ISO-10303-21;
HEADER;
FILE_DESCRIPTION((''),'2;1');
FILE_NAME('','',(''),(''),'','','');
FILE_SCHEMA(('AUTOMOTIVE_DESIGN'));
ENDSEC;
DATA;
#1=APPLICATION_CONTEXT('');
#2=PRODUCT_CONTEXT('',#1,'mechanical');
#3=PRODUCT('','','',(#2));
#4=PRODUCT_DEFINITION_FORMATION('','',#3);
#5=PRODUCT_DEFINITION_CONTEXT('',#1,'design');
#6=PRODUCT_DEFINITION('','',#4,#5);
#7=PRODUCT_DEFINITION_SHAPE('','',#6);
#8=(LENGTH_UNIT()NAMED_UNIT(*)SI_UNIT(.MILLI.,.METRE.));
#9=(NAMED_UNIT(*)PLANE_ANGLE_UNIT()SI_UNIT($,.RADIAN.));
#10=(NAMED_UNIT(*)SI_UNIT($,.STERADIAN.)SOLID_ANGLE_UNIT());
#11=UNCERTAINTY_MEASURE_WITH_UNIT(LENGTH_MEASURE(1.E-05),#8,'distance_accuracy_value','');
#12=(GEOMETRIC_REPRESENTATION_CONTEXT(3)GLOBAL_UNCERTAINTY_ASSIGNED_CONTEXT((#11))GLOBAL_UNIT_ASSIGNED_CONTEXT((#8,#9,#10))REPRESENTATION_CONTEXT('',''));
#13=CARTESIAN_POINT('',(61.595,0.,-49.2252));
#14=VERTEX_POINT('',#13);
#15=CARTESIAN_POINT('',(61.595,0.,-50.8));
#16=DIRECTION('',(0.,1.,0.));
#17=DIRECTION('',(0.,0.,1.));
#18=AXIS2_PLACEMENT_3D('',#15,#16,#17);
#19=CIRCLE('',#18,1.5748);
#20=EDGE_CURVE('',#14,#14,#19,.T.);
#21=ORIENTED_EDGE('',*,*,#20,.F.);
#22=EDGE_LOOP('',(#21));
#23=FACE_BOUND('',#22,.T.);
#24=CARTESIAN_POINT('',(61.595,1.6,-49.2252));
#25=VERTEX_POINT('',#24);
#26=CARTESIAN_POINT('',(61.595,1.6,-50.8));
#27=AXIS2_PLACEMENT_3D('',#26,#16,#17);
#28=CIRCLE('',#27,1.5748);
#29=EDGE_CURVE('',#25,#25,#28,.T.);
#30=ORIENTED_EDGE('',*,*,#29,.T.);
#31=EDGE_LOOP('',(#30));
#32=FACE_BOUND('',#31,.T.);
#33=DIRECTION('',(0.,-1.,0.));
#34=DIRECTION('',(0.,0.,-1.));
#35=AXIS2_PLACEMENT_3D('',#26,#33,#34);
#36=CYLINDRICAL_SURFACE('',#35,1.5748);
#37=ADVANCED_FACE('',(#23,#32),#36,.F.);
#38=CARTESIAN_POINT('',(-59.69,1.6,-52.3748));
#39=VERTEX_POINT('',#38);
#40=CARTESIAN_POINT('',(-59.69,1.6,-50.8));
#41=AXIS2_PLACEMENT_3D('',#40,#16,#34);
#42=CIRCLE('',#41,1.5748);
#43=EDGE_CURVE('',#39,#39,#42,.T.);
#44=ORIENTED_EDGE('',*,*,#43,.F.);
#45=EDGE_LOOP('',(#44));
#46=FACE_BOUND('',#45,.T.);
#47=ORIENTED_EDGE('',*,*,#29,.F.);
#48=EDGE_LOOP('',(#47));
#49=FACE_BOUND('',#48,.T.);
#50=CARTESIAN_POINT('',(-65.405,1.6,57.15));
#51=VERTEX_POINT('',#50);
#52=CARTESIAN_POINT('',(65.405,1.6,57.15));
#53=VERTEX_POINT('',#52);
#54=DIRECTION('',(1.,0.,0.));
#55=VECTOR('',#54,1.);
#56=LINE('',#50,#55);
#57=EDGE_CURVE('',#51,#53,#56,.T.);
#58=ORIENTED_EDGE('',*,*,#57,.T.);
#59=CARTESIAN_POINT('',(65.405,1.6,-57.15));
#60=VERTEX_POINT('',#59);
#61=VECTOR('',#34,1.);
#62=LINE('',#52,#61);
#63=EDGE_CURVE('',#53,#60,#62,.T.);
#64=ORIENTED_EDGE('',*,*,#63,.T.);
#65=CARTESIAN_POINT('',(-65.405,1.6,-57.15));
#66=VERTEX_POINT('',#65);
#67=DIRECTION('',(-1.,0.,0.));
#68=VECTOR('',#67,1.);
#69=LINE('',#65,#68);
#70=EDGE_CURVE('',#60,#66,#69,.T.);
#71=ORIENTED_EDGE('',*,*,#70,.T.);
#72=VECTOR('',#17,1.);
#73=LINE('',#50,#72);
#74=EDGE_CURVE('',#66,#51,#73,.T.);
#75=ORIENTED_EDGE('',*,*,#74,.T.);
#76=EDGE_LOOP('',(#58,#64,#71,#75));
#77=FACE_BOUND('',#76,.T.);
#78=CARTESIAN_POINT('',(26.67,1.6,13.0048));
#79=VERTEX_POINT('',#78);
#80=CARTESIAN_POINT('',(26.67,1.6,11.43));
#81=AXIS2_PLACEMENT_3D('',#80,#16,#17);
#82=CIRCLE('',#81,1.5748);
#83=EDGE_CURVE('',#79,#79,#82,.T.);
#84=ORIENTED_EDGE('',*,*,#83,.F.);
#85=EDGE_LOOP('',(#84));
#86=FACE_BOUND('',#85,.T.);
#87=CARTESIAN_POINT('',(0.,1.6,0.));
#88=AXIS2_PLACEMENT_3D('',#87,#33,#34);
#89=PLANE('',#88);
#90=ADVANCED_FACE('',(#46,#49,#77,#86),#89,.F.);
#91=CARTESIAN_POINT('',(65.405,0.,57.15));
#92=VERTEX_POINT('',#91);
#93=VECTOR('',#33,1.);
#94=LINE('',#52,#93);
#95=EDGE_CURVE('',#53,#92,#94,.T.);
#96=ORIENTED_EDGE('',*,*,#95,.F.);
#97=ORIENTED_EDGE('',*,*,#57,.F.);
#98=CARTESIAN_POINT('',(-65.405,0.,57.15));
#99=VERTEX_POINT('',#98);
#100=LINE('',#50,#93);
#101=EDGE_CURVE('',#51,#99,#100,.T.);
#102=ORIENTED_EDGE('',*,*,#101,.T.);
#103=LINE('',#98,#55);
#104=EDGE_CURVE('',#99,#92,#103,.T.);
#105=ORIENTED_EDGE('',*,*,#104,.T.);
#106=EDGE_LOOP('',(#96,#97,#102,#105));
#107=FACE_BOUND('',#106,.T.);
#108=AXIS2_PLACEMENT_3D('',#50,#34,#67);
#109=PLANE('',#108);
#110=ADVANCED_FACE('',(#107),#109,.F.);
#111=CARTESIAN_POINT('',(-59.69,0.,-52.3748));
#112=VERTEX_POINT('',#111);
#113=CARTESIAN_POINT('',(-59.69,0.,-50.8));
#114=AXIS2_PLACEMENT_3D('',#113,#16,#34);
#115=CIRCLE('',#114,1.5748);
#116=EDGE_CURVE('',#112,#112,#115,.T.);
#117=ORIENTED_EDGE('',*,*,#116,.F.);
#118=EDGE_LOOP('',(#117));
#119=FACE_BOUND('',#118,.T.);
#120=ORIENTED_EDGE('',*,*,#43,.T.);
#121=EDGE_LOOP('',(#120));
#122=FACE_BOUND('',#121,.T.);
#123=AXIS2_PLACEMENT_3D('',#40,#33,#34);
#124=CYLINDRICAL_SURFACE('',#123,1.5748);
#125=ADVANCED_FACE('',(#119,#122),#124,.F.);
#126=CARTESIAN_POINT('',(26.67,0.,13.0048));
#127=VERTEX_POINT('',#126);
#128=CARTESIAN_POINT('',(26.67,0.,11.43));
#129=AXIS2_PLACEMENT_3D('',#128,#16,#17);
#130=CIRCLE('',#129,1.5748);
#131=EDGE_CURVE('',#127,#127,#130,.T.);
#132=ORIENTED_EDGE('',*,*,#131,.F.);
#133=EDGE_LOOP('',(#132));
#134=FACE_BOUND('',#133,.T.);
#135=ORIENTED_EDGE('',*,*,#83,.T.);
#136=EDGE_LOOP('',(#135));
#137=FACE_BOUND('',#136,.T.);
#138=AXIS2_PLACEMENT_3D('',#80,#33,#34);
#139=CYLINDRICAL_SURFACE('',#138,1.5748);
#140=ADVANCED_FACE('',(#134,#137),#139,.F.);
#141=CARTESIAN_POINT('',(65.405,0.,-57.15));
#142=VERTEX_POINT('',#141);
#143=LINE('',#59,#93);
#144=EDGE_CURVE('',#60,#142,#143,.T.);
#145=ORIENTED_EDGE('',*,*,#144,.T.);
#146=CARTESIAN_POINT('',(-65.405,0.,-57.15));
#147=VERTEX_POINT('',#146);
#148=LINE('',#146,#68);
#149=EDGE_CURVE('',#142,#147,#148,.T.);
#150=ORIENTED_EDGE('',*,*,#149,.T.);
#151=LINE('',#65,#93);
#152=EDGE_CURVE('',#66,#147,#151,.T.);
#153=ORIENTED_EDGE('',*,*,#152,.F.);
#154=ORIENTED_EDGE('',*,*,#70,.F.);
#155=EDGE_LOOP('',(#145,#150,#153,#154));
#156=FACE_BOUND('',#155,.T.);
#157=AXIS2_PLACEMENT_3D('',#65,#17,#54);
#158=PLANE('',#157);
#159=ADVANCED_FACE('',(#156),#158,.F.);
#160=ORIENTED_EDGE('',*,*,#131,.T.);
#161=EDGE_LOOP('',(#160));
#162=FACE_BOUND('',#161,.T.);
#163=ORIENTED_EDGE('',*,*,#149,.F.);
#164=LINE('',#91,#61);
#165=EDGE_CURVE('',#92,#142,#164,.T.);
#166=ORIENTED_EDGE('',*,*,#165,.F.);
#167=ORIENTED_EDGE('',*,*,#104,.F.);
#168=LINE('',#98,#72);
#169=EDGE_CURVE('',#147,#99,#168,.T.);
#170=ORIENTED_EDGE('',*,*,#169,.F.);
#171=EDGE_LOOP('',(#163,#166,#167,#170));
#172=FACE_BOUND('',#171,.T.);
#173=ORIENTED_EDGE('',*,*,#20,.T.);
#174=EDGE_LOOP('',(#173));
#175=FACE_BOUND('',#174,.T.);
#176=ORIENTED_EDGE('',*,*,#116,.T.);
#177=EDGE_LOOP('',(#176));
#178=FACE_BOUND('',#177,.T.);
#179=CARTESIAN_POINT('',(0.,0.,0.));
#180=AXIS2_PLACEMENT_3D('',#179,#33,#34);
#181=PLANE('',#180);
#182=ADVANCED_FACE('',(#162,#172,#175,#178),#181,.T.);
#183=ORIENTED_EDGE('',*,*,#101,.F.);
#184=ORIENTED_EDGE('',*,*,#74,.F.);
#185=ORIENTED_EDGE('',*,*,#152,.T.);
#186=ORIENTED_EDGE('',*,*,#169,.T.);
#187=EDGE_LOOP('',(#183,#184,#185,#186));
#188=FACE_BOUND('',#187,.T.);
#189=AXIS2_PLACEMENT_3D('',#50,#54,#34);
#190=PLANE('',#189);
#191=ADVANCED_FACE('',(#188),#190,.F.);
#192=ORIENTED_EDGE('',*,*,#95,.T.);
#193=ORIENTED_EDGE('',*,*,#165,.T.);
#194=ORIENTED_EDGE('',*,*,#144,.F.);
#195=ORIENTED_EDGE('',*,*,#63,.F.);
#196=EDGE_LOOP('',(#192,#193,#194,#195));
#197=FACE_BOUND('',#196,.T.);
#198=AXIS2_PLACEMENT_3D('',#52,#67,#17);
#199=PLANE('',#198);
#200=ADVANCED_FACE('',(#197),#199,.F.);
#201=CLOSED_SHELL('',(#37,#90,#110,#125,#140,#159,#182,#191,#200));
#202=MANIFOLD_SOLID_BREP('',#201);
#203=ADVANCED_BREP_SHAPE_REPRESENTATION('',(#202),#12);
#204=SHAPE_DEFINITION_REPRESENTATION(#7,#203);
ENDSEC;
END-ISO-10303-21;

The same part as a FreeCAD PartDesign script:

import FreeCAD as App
import Part
import Sketcher
from FreeCAD import Vector
Q = App.Units.Quantity

doc = App.newDocument("Part")
body = doc.addObject("PartDesign::Body", "Body")

# Sketch on XZ plane
sketch1 = body.newObject("Sketcher::SketchObject", "Sketch")
sketch1.AttachmentSupport = (doc.getObject("XZ_Plane"), [""])
sketch1.MapMode = "FlatFace"
sketch1.addGeometry(Part.LineSegment(Vector(-65.4, -57.1, 0), Vector(-65.4, 57.1, 0)), False)
sketch1.addGeometry(Part.LineSegment(Vector(-65.4, 57.1, 0), Vector(65.4, 57.1, 0)), False)
sketch1.addGeometry(Part.LineSegment(Vector(65.4, 57.1, 0), Vector(65.4, -57.1, 0)), False)
sketch1.addGeometry(Part.LineSegment(Vector(65.4, -57.1, 0), Vector(-65.4, -57.1, 0)), False)
sketch1.addGeometry(Part.Circle(Vector(26.7, 11.4, 0), Vector(0, 0, 1), 1.6), False)
sketch1.addGeometry(Part.Circle(Vector(-59.7, -50.8, 0), Vector(0, 0, 1), 1.6), False)
sketch1.addGeometry(Part.Circle(Vector(61.6, -50.8, 0), Vector(0, 0, 1), 1.6), False)
sketch1.addConstraint(Sketcher.Constraint("Coincident", 0, 2, 1, 1))
sketch1.addConstraint(Sketcher.Constraint("Coincident", 1, 2, 2, 1))
sketch1.addConstraint(Sketcher.Constraint("Coincident", 2, 2, 3, 1))
sketch1.addConstraint(Sketcher.Constraint("Coincident", 3, 2, 0, 1))
sketch1.addConstraint(Sketcher.Constraint("Vertical", 0))
sketch1.addConstraint(Sketcher.Constraint("Horizontal", 1))
sketch1.addConstraint(Sketcher.Constraint("Vertical", 2))
sketch1.addConstraint(Sketcher.Constraint("Horizontal", 3))
sketch1.addConstraint(Sketcher.Constraint("Equal", 4, 5))
sketch1.addConstraint(Sketcher.Constraint("Equal", 5, 6))
sketch1.addConstraint(Sketcher.Constraint("Symmetric", 0, 2, 2, 2, -1, 1))
sketch1.addConstraint(Sketcher.Constraint("Horizontal", 5, 3, 6, 3))
sketch1.addConstraint(Sketcher.Constraint("Diameter", 4, Q("0.124 in")))
sketch1.addConstraint(Sketcher.Constraint("DistanceY", 0, 1, 0, 2, Q("4.5 in")))
sketch1.addConstraint(Sketcher.Constraint("DistanceY", 5, 3, -1, 1, Q("2 in")))
sketch1.addConstraint(Sketcher.Constraint("DistanceX", 0, 2, 6, 3, Q("5 in")))
sketch1.addConstraint(Sketcher.Constraint("DistanceX", 1, 1, 1, 2, Q("5.15 in")))
sketch1.addConstraint(Sketcher.Constraint("DistanceX", 5, 3, 4, 3, Q("3.4 in")))
sketch1.addConstraint(Sketcher.Constraint("DistanceY", 4, 3, 0, 2, Q("1.8 in")))
sketch1.addConstraint(Sketcher.Constraint("DistanceX", -1, 1, 4, 3, Q("1.05 in")))
pad1 = body.newObject("PartDesign::Pad", "Pad")
pad1.Profile = sketch1
pad1.Length = 1.6
pad1.Reversed = True

doc.recompute()
